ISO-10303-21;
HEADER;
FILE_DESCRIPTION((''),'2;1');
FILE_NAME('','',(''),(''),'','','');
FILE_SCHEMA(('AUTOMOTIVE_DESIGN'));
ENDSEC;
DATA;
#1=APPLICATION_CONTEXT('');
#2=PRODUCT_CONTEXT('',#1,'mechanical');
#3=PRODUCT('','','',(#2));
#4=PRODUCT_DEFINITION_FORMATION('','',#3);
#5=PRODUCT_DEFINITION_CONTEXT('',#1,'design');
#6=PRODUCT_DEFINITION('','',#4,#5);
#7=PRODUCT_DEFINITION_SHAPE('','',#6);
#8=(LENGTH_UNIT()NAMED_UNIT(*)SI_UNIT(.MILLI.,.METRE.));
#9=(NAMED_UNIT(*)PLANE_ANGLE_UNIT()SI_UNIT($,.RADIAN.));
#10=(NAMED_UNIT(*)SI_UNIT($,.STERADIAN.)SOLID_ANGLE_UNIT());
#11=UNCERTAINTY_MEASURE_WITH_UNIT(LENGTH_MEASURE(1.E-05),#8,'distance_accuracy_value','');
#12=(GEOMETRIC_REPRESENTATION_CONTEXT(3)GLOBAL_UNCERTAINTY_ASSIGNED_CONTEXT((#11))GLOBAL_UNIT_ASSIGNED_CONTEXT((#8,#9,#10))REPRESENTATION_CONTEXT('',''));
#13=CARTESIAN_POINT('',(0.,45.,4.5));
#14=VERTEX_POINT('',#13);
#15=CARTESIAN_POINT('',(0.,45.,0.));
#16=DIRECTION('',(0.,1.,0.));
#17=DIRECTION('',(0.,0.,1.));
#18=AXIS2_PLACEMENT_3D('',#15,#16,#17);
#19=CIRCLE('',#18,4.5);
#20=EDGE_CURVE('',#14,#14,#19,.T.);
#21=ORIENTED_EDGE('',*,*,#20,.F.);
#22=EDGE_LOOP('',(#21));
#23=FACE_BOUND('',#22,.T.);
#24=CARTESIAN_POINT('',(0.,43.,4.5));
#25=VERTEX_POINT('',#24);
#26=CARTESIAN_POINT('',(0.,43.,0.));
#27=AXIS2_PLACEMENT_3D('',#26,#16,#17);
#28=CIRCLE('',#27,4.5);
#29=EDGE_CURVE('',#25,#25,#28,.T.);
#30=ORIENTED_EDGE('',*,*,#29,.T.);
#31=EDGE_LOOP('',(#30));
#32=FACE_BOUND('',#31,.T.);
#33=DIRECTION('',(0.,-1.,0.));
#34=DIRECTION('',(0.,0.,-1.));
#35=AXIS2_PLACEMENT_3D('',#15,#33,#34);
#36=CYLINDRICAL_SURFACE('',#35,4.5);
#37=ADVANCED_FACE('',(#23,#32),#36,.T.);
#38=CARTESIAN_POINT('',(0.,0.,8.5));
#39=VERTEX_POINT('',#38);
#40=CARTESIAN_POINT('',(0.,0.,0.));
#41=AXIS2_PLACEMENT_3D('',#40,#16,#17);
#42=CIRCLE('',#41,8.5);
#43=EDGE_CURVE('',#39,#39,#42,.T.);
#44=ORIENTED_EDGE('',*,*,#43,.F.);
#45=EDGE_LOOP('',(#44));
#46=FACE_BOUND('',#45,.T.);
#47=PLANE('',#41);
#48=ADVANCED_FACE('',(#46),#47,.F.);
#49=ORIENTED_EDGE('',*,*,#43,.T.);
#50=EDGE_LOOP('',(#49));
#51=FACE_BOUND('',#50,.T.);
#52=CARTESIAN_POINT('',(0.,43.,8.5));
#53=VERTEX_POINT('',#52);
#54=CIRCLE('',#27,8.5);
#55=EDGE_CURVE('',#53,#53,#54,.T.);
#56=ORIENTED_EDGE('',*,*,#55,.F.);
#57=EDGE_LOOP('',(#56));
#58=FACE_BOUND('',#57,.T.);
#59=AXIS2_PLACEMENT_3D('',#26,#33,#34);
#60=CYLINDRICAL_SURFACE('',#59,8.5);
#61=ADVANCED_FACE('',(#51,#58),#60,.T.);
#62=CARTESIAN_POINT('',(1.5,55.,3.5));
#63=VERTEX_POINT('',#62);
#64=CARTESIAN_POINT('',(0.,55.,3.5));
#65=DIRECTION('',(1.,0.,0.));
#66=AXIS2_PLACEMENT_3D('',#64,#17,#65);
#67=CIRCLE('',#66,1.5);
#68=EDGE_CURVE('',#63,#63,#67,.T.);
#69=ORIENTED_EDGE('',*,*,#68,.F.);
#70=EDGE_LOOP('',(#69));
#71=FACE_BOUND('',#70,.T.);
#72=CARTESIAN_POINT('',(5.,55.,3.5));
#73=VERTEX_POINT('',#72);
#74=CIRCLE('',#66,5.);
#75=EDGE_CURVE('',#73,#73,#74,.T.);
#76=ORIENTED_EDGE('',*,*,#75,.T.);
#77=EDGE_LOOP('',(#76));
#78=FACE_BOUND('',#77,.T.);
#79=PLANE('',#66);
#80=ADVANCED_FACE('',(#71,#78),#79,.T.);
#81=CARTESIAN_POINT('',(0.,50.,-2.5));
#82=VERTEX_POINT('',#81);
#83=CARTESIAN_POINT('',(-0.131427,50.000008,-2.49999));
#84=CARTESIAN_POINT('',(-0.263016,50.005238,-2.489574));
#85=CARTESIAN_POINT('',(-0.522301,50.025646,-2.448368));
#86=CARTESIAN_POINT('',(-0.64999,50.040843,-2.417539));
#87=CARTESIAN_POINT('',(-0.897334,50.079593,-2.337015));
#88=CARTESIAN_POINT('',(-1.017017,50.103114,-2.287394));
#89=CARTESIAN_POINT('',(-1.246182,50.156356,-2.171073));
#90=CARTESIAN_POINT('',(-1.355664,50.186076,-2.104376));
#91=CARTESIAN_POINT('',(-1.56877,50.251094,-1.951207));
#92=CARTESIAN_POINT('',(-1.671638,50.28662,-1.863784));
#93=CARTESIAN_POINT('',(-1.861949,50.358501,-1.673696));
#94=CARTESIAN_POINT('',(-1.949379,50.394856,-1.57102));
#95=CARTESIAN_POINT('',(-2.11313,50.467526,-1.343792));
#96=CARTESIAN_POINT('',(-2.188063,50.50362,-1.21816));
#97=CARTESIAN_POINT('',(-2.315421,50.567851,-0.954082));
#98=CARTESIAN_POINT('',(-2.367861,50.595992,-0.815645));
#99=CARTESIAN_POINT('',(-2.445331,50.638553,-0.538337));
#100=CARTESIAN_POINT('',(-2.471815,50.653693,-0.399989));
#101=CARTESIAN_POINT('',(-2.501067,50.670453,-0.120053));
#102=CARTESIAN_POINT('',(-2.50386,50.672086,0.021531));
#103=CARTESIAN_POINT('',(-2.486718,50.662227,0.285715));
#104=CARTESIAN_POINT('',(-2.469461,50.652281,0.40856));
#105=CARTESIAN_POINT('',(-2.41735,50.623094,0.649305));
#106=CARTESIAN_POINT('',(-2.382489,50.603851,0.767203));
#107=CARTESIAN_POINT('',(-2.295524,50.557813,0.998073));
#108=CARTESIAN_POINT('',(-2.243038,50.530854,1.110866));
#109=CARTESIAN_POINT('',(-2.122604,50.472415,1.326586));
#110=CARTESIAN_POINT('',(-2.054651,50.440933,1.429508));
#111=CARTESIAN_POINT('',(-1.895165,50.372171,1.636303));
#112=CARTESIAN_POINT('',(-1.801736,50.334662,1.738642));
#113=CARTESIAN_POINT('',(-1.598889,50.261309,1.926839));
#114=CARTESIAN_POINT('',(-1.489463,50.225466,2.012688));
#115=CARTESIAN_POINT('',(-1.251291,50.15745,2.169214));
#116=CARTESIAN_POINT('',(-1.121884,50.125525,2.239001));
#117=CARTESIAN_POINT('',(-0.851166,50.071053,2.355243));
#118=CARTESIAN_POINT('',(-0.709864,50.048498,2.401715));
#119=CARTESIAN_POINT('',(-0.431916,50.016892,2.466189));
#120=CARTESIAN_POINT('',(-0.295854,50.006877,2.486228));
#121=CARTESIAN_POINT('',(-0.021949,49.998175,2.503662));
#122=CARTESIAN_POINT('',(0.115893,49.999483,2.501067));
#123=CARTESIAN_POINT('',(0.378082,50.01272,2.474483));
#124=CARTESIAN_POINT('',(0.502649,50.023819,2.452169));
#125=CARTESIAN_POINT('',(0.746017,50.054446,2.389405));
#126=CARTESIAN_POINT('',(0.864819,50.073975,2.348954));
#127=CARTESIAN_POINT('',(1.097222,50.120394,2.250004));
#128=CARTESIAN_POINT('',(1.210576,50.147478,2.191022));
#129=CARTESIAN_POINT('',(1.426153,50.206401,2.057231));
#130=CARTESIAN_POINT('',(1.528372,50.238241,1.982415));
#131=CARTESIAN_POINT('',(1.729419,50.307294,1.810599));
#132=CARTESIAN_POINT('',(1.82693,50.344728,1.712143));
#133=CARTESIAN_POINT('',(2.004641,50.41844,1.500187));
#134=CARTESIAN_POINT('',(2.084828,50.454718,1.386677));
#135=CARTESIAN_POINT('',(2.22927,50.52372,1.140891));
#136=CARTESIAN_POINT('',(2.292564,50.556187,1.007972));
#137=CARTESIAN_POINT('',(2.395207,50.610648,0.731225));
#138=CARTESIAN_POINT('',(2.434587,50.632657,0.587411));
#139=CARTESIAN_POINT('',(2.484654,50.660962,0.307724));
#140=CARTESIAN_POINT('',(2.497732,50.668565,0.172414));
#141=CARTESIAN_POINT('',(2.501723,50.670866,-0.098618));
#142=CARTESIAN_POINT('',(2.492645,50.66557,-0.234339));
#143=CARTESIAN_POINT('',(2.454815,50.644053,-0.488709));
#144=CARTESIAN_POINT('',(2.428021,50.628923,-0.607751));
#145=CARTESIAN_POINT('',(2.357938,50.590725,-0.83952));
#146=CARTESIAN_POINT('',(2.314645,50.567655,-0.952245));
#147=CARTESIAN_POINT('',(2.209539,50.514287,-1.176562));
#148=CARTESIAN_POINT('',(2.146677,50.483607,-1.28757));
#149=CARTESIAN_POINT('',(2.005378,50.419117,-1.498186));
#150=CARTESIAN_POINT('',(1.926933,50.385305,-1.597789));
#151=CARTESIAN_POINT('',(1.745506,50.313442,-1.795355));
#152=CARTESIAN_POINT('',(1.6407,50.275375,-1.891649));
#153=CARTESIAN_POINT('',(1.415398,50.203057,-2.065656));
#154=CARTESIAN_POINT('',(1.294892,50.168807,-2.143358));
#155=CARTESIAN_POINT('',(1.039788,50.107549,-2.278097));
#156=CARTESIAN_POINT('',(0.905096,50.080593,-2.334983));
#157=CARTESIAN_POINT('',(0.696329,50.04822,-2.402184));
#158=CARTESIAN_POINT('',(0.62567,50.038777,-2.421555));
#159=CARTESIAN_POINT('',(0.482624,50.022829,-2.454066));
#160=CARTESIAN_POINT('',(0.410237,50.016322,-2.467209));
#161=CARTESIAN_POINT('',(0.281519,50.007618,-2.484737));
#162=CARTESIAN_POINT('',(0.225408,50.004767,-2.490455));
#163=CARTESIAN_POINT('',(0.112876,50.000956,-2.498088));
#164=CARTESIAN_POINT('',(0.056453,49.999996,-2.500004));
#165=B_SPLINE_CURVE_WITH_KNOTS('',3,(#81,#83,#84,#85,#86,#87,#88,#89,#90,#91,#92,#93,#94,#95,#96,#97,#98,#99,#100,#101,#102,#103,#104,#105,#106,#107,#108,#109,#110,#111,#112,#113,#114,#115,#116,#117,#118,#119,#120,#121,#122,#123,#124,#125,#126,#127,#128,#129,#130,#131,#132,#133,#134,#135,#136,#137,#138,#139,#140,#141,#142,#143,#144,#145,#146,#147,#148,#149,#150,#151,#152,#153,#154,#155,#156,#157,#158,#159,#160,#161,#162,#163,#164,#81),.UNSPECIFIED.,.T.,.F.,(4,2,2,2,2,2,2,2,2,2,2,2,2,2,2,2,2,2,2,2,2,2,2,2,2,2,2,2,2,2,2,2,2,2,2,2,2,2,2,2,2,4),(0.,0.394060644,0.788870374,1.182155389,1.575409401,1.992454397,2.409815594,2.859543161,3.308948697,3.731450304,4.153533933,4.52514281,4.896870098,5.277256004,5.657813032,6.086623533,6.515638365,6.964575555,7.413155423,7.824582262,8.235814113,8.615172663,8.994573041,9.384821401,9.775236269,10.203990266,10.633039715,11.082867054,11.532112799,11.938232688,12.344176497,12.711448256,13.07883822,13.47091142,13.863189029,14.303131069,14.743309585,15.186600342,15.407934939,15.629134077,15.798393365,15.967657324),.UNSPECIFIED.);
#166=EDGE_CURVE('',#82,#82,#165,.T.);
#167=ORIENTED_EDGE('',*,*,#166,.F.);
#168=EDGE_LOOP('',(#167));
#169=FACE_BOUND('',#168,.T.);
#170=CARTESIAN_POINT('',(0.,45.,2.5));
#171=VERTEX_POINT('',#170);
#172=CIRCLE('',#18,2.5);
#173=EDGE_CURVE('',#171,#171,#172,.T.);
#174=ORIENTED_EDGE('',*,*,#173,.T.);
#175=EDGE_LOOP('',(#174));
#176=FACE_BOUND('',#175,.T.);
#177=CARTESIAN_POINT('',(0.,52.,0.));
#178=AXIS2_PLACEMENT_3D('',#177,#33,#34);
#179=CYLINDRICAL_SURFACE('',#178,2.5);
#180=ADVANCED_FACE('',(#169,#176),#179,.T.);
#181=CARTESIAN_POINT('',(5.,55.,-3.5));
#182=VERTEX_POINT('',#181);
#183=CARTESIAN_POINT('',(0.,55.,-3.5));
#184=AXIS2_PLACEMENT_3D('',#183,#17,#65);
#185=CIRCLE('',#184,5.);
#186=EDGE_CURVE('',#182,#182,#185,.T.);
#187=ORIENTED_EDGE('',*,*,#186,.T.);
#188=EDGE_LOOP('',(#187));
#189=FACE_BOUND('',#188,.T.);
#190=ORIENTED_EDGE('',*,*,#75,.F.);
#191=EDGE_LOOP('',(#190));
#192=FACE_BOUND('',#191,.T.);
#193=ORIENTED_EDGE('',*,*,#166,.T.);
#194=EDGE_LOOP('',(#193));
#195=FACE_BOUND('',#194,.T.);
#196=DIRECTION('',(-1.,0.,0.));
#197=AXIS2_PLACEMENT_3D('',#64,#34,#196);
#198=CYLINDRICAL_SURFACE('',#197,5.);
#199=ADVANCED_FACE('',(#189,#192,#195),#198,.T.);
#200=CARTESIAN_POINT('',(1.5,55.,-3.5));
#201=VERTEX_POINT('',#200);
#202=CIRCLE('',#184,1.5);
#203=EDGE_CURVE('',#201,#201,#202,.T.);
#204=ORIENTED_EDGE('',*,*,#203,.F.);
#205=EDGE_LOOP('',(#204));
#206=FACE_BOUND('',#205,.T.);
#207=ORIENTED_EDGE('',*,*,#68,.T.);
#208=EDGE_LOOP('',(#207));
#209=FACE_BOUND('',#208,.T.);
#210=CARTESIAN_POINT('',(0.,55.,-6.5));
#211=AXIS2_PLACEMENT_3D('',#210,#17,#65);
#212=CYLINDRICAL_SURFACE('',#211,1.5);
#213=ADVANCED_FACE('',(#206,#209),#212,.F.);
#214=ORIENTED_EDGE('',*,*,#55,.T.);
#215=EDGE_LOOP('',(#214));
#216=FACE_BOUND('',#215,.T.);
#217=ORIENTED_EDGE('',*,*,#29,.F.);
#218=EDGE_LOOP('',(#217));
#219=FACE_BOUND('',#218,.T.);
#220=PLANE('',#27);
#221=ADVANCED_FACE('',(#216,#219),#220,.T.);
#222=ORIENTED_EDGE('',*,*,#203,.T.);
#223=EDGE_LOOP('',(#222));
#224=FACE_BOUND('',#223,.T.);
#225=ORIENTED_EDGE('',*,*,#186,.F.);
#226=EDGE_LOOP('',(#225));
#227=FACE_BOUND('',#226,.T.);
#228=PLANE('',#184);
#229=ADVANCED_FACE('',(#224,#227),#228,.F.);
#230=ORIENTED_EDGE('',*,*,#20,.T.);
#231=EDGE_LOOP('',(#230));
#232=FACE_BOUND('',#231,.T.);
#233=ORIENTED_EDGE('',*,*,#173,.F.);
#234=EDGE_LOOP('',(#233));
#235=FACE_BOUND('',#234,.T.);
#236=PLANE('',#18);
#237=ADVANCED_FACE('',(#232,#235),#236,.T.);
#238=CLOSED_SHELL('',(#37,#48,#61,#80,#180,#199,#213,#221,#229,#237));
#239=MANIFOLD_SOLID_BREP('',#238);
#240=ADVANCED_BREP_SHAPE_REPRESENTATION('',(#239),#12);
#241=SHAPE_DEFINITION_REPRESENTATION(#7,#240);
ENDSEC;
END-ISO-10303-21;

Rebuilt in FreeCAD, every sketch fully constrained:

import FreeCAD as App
import Part
import Sketcher

V = App.Vector

doc = App.newDocument("Part")
body = doc.addObject("PartDesign::Body", "Body")

# Sketch on XZ plane
sketch1 = body.newObject("Sketcher::SketchObject", "Sketch")
sketch1.AttachmentSupport = (doc.getObject("XZ_Plane"), [""])
sketch1.MapMode = "FlatFace"
sketch1.addGeometry(Part.Circle(V(0, 0, 0), V(0, 0, 1), 8), False)
sketch1.addConstraint([
    Sketcher.Constraint("Coincident", 0, 3, -1, 1),
    Sketcher.Constraint("Diameter", 0, 17.0),
])
pad1 = body.newObject("PartDesign::Pad", "Pad")
pad1.Profile = sketch1
pad1.Length = 43
pad1.Reversed = True
body2 = doc.addObject("PartDesign::Body", "Body001")

# Sketch on XY plane
sketch2 = body2.newObject("Sketcher::SketchObject", "Sketch001")
sketch2.AttachmentSupport = (doc.getObject("XY_Plane001"), [""])
sketch2.MapMode = "FlatFace"
sketch2.addGeometry(Part.Circle(V(0, 55, 0), V(0, 0, 1), 5), False)
sketch2.addConstraint([
    Sketcher.Constraint("PointOnObject", 0, 3, -2),
    Sketcher.Constraint("Diameter", 0, 10.0),
    Sketcher.Constraint("DistanceY", -1, 1, 0, 3, 55.0),
])
pad2 = body2.newObject("PartDesign::Pad", "Pad001")
pad2.Profile = sketch2
pad2.Length = 7
pad2.Midplane = True
body.AllowCompound = True
doc.recompute()

boolean = body.newObject("PartDesign::Boolean", "Boolean")
boolean.Type = "Fuse"
boolean.addObjects([body2])

# Sketch on XZ plane
sketch3 = body.newObject("Sketcher::SketchObject", "Sketch002")
sketch3.AttachmentSupport = (doc.getObject("XZ_Plane"), [""])
sketch3.MapMode = "FlatFace"
sketch3.AttachmentOffset = App.Placement(V(0, 0, -43), App.Rotation())
sketch3.addGeometry(Part.Circle(V(0, 0, 0), V(0, 0, 1), 2.5), False)
sketch3.addConstraint([
    Sketcher.Constraint("Coincident", 0, 3, -1, 1),
    Sketcher.Constraint("Diameter", 0, 5.0),
])
pad3 = body.newObject("PartDesign::Pad", "Pad002")
pad3.Profile = sketch3
pad3.Length = 9
pad3.Reversed = True

# Sketch on XY plane
sketch4 = body.newObject("Sketcher::SketchObject", "Sketch003")
sketch4.AttachmentSupport = (doc.getObject("XY_Plane"), [""])
sketch4.MapMode = "FlatFace"
sketch4.AttachmentOffset = App.Placement(V(0, 0, 3.5), App.Rotation())
sketch4.addGeometry(Part.Circle(V(0, 55, 0), V(0, 0, 1), 1.5), False)
sketch4.addConstraint([
    Sketcher.Constraint("PointOnObject", 0, 3, -2),
    Sketcher.Constraint("Diameter", 0, 3.0),
    Sketcher.Constraint("DistanceY", -1, 1, 0, 3, 55.0),
])
pocket1 = body.newObject("PartDesign::Pocket", "Pocket")
pocket1.Profile = sketch4
pocket1.Length = 10

# Sketch on XZ plane
sketch5 = body.newObject("Sketcher::SketchObject", "Sketch004")
sketch5.AttachmentSupport = (doc.getObject("XZ_Plane"), [""])
sketch5.MapMode = "FlatFace"
sketch5.AttachmentOffset = App.Placement(V(0, 0, -43), App.Rotation())
sketch5.addGeometry([
    Part.Circle(V(0, 0, 0), V(0, 0, 1), 4.5),
    Part.Circle(V(0, 0, 0), V(0, 0, 1), 2.5),
], False)
sketch5.addConstraint([
    Sketcher.Constraint("Coincident", 0, 3, -1, 1),
    Sketcher.Constraint("Coincident", 1, 3, -1, 1),
    Sketcher.Constraint("Diameter", 0, 9.0),
    Sketcher.Constraint("Diameter", 1, 5.0),
])
pad4 = body.newObject("PartDesign::Pad", "Pad003")
pad4.Profile = sketch5
pad4.Length = 2
pad4.Reversed = True

doc.recompute()
